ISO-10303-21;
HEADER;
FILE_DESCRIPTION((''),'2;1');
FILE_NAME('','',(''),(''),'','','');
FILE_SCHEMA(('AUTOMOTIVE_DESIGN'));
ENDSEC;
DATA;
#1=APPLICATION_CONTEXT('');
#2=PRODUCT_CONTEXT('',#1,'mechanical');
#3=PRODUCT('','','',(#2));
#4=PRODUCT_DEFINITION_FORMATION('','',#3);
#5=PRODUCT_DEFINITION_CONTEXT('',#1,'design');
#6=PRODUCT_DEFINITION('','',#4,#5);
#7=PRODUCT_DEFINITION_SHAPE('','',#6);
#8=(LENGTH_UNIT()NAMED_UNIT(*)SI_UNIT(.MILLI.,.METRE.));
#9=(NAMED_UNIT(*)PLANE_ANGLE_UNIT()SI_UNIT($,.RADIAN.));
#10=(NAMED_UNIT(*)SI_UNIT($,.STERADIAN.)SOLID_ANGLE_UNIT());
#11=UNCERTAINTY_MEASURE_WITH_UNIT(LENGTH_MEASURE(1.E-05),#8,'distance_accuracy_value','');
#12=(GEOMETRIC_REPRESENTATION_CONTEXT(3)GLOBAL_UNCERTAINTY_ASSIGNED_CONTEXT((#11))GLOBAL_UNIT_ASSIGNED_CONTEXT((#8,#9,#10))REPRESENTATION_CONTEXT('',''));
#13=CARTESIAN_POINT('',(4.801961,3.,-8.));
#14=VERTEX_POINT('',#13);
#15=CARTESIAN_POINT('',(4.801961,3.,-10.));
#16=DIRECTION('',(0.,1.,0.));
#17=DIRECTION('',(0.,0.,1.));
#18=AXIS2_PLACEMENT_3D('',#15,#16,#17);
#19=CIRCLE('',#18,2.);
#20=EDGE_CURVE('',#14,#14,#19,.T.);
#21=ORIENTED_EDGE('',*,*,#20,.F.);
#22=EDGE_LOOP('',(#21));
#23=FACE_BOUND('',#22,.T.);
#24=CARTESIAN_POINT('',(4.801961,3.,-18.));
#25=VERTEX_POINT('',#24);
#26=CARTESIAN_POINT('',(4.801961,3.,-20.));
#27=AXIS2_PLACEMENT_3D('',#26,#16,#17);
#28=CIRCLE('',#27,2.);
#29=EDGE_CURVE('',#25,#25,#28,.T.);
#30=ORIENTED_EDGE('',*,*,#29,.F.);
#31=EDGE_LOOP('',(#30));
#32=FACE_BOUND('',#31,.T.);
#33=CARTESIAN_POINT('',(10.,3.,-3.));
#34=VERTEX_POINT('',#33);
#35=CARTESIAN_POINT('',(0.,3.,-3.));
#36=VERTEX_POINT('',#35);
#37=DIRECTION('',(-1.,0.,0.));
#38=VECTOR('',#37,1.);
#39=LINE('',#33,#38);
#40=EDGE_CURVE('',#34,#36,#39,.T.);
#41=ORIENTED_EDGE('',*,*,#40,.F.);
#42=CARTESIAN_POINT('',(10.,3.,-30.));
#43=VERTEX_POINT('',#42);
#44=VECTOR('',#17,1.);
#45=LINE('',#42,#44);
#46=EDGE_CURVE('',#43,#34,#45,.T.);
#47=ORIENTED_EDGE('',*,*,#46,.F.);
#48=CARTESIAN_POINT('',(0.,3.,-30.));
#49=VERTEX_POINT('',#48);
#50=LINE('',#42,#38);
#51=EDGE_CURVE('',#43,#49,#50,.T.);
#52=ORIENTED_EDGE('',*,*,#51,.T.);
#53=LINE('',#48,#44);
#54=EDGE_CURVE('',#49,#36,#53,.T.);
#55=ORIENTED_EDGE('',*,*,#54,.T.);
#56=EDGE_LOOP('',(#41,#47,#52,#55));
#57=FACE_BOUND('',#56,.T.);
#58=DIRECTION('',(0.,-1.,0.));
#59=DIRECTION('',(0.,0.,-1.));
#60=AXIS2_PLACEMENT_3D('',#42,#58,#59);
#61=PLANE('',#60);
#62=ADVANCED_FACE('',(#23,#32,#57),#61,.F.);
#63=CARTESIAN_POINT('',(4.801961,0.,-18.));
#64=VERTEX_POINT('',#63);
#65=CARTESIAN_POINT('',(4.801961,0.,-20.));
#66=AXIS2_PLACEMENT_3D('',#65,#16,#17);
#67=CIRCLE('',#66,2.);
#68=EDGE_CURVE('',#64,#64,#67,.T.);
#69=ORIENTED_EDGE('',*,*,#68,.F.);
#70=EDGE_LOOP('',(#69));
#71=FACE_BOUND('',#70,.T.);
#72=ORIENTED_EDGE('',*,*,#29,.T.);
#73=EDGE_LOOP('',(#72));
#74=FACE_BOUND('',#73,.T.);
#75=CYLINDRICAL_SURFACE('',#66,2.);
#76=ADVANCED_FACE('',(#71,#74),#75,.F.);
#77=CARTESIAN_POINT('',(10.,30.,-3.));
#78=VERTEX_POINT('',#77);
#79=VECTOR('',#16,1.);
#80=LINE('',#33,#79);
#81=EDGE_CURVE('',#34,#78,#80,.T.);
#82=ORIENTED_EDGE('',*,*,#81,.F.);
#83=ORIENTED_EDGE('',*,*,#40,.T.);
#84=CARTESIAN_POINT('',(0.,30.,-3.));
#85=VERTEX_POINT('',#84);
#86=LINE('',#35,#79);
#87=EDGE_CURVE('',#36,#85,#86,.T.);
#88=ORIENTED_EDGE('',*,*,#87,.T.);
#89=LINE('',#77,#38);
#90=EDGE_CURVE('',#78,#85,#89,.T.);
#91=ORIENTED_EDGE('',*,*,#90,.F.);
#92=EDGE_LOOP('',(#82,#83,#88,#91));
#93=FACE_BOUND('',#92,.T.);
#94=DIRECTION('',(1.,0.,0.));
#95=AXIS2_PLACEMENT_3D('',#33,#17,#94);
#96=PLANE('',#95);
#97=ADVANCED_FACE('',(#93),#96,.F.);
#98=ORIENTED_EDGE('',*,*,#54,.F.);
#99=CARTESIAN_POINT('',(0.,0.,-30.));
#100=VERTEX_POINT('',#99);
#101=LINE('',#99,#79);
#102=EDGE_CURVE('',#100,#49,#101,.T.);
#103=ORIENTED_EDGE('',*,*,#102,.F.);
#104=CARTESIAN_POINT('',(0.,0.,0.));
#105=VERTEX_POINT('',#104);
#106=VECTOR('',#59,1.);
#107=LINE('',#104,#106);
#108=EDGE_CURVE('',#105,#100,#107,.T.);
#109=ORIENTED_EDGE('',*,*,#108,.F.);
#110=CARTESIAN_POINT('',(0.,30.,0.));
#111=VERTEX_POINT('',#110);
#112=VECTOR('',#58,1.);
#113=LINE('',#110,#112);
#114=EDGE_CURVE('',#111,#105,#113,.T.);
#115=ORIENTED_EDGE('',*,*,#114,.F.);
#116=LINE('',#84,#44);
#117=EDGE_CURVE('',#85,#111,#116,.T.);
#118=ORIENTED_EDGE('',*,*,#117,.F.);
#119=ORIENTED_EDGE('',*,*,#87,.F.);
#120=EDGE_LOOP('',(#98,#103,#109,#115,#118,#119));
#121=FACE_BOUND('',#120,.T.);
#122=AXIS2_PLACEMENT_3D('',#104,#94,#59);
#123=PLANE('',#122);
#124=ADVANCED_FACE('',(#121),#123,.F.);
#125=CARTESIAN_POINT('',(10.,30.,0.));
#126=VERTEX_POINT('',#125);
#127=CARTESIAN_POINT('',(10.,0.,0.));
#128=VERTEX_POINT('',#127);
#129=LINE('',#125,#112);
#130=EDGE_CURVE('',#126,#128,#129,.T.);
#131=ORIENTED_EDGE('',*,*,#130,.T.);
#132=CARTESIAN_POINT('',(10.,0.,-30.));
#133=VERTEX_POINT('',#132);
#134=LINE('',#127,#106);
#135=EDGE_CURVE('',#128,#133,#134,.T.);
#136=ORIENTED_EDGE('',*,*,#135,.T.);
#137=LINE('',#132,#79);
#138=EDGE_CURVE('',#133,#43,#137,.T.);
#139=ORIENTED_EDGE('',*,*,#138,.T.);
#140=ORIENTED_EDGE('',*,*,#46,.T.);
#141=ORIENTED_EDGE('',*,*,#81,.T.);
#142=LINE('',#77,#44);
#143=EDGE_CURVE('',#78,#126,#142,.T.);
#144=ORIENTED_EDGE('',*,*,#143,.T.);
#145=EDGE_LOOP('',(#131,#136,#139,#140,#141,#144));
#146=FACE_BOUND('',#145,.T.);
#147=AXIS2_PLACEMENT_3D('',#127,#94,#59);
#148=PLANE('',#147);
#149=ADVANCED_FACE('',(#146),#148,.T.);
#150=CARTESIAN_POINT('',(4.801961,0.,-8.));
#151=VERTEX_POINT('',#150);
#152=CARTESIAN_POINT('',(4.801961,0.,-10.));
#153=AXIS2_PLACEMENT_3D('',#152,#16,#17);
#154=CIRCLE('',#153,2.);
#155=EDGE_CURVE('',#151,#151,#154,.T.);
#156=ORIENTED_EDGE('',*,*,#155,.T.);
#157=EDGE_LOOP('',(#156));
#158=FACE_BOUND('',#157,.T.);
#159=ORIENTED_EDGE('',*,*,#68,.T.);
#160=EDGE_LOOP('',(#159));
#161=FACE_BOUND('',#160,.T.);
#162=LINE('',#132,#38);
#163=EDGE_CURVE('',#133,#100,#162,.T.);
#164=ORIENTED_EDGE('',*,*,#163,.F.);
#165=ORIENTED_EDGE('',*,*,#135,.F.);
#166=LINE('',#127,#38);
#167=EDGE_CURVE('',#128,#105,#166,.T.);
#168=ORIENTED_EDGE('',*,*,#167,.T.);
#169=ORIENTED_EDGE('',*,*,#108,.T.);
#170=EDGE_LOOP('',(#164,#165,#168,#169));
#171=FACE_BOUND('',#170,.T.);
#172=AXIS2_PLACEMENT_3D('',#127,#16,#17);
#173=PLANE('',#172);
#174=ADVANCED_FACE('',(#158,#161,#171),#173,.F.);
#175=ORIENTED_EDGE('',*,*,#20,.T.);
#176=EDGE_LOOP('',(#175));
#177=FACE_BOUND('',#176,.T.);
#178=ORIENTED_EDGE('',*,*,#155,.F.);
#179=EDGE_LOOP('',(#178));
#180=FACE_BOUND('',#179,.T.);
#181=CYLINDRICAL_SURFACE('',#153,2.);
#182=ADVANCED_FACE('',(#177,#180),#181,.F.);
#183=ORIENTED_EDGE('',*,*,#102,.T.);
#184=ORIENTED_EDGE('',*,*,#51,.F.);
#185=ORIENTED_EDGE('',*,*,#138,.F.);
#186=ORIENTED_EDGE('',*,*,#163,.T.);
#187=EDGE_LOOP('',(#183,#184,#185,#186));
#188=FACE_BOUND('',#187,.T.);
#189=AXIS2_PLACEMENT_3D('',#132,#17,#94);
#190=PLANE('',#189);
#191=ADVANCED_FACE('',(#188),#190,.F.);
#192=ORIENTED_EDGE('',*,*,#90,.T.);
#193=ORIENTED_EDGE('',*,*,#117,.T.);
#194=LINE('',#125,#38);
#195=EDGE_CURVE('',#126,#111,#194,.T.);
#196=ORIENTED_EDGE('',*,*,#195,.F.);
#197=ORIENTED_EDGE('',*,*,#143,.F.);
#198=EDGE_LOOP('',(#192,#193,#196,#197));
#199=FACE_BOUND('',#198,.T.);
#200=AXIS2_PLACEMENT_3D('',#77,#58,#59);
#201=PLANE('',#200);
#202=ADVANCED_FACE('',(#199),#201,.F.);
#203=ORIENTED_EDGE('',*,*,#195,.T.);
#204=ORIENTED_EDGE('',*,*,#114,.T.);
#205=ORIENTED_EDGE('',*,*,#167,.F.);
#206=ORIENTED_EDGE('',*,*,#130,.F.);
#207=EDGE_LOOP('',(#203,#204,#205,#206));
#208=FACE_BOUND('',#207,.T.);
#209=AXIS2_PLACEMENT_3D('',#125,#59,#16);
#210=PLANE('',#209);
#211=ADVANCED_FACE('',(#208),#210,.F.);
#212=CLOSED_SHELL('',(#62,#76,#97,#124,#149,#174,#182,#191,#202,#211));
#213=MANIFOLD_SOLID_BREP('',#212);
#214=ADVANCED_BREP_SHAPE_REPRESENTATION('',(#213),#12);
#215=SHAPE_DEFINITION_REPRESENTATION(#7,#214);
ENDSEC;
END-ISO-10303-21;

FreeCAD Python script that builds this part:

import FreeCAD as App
import Part
import Sketcher

V = App.Vector

doc = App.newDocument("Part")
body = doc.addObject("PartDesign::Body", "Body")

# Sketch on YZ plane
sketch1 = body.newObject("Sketcher::SketchObject", "Sketch")
sketch1.AttachmentSupport = (doc.getObject("YZ_Plane"), [""])
sketch1.MapMode = "FlatFace"
sketch1.addGeometry([
    Part.LineSegment(V(30, 0, 0), V(0, 0, 0)),  # 0
    Part.LineSegment(V(0, 0, 0), V(0, -30, 0)),  # 1
    Part.LineSegment(V(0, -30, 0), V(3, -30, 0)),  # 2
    Part.LineSegment(V(3, -30, 0), V(3, -3, 0)),  # 3
    Part.LineSegment(V(3, -3, 0), V(30, -3, 0)),  # 4
    Part.LineSegment(V(30, -3, 0), V(30, 0, 0)),  # 5
], False)
sketch1.addConstraint([
    Sketcher.Constraint("Coincident", 0, 2, 1, 1),
    Sketcher.Constraint("Coincident", 1, 2, 2, 1),
    Sketcher.Constraint("Coincident", 2, 2, 3, 1),
    Sketcher.Constraint("Coincident", 3, 2, 4, 1),
    Sketcher.Constraint("Coincident", 4, 2, 5, 1),
    Sketcher.Constraint("Coincident", 5, 2, 0, 1),
    Sketcher.Constraint("Horizontal", 0),
    Sketcher.Constraint("Vertical", 1),
    Sketcher.Constraint("Horizontal", 2),
    Sketcher.Constraint("Vertical", 3),
    Sketcher.Constraint("Horizontal", 4),
    Sketcher.Constraint("Vertical", 5),
    Sketcher.Constraint("Coincident", 0, 2, -1, 1),
    Sketcher.Constraint("Equal", 0, 1),
    Sketcher.Constraint("Equal", 4, 3),
    Sketcher.Constraint("DistanceX", 0, 2, 0, 1, 30.0),
    Sketcher.Constraint("DistanceX", 2, 1, 2, 2, 3.0),
])
pad1 = body.newObject("PartDesign::Pad", "Pad")
pad1.Profile = sketch1
pad1.Length = 10

# Sketch on XZ plane
sketch2 = body.newObject("Sketcher::SketchObject", "Sketch001")
sketch2.AttachmentSupport = (doc.getObject("XZ_Plane"), [""])
sketch2.MapMode = "FlatFace"
sketch2.AttachmentOffset = App.Placement(V(0, 0, -3), App.Rotation())
sketch2.addGeometry([
    Part.Circle(V(4.8, -10, 0), V(0, 0, 1), 2),
    Part.Circle(V(4.8, -20, 0), V(0, 0, 1), 2),
], False)
sketch2.addConstraint([
    Sketcher.Constraint("Equal", 0, 1),
    Sketcher.Constraint("Vertical", 0, 3, 1, 3),
    Sketcher.Constraint("Diameter", 0, 4.0),
    Sketcher.Constraint("DistanceY", 0, 3, -1, 1, 10.0),
    Sketcher.Constraint("DistanceY", 1, 3, -1, 1, 20.0),
    Sketcher.Constraint("DistanceX", -1, 1, 0, 3, 4.801961),
])
pocket1 = body.newObject("PartDesign::Pocket", "Pocket")
pocket1.Profile = sketch2
pocket1.Length = 3
pocket1.Reversed = True

doc.recompute()
